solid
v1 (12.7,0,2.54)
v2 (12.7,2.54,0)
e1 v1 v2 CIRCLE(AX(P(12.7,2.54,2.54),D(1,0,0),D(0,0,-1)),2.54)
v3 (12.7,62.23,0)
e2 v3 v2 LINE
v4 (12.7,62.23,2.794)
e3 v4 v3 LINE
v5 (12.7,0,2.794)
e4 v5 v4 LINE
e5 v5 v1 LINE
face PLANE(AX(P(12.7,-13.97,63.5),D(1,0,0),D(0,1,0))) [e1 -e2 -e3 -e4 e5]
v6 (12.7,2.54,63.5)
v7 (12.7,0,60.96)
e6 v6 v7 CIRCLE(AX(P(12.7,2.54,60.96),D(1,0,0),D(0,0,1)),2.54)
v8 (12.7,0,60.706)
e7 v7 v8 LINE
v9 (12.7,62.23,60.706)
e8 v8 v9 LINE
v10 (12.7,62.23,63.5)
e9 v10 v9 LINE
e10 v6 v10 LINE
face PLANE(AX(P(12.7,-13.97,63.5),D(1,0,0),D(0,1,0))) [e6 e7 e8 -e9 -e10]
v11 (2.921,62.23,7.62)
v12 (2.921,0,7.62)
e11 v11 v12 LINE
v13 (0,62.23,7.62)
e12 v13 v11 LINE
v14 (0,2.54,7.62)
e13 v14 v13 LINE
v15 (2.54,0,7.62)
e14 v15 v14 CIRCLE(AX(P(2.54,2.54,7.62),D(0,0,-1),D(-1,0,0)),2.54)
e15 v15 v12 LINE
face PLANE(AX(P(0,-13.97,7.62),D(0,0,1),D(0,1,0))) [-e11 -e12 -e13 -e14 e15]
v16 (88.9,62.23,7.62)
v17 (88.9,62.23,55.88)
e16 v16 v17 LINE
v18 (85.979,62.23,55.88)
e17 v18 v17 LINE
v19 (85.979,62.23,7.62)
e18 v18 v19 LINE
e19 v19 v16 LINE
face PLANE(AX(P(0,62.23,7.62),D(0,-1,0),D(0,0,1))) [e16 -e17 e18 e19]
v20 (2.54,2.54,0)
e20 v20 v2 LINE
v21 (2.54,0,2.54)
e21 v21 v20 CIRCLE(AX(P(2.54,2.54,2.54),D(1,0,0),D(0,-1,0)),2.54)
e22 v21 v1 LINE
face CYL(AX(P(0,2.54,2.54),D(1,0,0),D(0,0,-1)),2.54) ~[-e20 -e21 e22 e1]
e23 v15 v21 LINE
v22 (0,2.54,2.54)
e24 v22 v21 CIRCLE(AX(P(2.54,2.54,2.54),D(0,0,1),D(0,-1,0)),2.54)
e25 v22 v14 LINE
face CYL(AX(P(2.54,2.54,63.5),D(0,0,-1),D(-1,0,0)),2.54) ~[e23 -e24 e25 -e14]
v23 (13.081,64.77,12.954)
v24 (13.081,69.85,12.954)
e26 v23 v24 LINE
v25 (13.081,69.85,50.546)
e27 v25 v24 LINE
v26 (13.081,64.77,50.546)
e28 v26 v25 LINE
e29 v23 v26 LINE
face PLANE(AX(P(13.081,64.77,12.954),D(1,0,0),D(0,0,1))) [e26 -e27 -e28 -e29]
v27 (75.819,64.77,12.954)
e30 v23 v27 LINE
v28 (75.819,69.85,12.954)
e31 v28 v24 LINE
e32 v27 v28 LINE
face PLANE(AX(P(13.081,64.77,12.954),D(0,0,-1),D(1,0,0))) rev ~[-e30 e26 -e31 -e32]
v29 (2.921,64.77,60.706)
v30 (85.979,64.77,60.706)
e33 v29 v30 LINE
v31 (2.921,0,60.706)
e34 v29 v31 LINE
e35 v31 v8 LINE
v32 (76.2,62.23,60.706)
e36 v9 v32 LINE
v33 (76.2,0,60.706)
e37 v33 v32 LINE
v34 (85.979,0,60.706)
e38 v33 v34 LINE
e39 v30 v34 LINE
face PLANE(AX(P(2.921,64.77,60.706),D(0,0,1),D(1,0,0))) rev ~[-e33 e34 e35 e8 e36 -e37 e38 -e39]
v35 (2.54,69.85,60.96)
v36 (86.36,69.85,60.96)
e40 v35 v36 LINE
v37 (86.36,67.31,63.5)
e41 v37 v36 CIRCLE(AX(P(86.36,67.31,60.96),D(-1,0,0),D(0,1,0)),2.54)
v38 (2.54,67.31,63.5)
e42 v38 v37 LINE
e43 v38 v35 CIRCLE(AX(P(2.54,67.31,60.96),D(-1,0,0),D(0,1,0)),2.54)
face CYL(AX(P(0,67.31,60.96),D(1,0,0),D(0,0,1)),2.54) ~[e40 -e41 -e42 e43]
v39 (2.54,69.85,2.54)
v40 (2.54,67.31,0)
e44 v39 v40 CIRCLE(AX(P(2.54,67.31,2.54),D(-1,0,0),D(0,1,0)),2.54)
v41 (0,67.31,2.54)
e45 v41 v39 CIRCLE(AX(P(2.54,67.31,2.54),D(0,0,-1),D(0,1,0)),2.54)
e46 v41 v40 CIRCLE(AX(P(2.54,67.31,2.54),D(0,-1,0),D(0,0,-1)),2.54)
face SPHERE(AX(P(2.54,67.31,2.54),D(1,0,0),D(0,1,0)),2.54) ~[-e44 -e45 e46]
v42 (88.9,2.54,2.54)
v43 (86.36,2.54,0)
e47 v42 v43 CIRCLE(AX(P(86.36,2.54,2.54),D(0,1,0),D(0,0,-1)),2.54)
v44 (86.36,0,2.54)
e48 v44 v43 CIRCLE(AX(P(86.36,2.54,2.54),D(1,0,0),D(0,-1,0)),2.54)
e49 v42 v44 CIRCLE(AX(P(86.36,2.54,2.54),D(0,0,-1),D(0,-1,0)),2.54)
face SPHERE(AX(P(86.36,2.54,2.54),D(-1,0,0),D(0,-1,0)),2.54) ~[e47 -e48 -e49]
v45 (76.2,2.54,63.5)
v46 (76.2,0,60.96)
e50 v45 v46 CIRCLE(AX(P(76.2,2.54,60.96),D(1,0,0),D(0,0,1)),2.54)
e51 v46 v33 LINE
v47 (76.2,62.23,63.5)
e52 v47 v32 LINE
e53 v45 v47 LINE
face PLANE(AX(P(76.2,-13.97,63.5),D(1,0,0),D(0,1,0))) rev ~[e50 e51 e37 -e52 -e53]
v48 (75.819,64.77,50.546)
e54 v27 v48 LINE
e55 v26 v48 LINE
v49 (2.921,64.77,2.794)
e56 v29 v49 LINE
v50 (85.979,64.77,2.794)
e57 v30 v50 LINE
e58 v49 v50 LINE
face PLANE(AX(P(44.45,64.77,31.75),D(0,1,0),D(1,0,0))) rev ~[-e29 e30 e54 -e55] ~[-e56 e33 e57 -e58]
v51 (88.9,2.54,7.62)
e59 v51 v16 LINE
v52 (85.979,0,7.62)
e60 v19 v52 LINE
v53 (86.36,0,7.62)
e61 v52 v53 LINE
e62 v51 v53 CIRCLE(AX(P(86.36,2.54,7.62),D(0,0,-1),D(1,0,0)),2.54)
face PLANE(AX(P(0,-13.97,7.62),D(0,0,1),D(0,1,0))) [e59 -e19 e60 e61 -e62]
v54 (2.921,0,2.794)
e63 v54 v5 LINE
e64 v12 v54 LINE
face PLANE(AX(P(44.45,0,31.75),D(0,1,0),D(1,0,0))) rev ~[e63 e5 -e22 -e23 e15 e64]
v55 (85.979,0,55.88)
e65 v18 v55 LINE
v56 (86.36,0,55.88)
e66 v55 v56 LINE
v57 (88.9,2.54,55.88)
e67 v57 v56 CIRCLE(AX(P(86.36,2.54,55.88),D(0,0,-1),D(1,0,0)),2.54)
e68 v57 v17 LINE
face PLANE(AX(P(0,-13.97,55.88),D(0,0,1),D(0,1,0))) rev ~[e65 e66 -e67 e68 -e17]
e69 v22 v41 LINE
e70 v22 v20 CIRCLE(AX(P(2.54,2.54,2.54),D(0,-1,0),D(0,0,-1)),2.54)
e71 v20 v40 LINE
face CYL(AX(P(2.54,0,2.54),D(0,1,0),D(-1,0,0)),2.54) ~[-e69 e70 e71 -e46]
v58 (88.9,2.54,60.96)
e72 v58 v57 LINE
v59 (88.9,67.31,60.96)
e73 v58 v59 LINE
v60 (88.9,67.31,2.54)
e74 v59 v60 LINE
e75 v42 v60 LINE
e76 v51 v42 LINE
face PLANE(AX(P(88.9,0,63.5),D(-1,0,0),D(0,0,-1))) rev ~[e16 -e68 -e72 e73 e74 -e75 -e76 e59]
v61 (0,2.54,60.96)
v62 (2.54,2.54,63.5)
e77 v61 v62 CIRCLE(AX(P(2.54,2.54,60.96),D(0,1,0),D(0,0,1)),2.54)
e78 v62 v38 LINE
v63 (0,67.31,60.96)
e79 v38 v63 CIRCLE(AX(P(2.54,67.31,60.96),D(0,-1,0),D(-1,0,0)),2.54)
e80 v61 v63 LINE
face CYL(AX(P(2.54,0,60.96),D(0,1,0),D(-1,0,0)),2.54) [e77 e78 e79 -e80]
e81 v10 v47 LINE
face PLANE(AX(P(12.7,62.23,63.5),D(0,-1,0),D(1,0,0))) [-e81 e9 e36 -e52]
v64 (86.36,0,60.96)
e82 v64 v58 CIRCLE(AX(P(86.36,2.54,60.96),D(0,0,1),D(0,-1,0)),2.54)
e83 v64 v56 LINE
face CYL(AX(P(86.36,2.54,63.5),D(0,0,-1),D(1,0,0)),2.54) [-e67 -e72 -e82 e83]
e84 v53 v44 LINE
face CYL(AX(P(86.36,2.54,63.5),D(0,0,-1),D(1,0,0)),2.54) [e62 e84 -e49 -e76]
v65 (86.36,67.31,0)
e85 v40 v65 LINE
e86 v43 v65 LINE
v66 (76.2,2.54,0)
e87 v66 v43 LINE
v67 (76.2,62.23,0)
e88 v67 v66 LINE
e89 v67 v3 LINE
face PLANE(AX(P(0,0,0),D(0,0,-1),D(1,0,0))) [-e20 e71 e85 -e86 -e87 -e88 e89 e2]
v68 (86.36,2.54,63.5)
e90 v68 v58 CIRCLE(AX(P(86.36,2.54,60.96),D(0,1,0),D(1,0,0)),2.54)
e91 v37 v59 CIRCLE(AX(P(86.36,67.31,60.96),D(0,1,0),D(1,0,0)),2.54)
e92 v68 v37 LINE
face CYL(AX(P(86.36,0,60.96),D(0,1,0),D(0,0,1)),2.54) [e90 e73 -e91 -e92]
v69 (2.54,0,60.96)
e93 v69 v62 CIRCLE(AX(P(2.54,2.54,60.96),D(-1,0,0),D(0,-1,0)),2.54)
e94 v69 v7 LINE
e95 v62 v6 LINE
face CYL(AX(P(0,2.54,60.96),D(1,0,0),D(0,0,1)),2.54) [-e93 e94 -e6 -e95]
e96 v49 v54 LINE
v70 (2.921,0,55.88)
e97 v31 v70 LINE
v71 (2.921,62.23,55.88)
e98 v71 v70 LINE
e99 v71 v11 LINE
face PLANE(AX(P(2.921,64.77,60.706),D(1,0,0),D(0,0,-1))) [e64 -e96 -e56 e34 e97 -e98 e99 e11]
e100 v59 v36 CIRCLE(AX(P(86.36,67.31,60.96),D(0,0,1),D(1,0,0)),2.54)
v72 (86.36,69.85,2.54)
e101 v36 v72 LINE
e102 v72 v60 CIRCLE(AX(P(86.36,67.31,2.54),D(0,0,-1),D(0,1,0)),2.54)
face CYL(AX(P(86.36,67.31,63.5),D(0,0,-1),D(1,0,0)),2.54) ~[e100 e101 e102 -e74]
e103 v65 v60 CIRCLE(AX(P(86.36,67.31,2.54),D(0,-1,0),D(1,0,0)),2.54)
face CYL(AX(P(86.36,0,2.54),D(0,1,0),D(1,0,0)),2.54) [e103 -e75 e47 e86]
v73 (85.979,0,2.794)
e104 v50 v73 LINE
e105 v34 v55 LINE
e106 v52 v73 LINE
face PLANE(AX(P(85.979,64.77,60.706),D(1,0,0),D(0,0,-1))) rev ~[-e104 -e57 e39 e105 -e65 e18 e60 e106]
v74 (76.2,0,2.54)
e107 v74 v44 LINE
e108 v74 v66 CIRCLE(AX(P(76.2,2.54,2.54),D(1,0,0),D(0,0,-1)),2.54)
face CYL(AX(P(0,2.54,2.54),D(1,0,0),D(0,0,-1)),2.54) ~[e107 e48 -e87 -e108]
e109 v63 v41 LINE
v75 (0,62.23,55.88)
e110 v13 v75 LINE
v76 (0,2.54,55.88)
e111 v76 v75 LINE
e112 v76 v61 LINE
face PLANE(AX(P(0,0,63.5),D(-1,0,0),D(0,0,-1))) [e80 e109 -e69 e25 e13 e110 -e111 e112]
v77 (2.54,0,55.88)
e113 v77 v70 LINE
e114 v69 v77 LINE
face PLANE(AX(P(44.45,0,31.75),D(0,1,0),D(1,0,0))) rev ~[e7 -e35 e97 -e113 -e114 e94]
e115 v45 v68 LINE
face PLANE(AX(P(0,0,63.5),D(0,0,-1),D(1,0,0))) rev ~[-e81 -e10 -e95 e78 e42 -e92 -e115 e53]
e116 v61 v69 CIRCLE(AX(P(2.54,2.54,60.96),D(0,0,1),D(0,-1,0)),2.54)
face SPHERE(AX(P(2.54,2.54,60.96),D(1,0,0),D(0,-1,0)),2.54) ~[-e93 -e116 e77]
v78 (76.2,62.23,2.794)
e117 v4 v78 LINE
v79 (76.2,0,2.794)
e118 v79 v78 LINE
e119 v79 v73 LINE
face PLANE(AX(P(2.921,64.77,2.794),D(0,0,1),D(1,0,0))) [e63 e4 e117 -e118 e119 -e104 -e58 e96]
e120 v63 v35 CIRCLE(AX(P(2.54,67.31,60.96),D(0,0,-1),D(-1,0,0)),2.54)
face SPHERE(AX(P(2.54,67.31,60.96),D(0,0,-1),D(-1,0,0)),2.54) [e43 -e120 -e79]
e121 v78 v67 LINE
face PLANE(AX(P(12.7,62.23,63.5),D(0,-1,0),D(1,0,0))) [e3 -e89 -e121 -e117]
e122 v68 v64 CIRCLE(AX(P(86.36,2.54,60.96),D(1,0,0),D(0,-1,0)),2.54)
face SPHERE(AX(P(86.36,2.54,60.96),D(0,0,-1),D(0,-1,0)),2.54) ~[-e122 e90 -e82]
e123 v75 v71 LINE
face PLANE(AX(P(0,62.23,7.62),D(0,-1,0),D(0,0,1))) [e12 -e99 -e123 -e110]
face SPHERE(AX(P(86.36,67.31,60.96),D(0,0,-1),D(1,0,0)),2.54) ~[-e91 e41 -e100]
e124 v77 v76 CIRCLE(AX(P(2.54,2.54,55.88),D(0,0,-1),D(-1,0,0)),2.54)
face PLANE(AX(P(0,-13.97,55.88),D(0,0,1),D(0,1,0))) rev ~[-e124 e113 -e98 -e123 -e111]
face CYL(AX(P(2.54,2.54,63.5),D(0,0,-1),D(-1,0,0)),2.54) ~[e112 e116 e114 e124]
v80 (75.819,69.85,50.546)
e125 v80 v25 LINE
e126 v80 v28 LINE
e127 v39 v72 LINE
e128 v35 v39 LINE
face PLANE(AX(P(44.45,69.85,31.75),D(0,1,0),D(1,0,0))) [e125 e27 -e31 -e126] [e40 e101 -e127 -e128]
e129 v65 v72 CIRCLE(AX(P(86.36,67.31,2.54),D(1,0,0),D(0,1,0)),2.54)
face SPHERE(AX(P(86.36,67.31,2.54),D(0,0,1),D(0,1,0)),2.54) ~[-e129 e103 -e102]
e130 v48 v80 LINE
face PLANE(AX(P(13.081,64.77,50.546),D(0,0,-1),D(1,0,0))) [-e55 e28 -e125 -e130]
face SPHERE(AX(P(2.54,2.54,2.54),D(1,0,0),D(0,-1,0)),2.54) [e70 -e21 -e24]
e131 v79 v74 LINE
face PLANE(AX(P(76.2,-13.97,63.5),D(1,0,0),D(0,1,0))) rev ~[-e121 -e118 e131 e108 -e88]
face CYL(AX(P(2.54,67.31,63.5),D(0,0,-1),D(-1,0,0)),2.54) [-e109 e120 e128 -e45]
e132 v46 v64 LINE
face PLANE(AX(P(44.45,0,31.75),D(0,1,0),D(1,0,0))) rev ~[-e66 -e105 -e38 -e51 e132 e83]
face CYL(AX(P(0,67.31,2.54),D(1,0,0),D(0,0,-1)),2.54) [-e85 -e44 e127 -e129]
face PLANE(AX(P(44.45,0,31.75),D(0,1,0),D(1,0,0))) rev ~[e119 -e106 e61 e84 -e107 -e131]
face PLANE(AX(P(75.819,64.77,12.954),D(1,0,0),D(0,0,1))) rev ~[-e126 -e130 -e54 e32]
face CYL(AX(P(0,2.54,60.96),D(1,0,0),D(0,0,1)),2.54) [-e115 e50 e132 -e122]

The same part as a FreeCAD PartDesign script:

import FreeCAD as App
import Part
import Sketcher
Q = App.Units.Quantity


def add_polygon(sketch, points):
    """Adds a closed chain of lines whose ends are joined by coincident constraints."""
    first, n = sketch.GeometryCount, len(points)
    for a, b in zip(points, points[1:] + points[:1]):
        sketch.addGeometry(Part.LineSegment(App.Vector(*a, 0), App.Vector(*b, 0)), False)
    for i in range(n):
        sketch.addConstraint(Sketcher.Constraint("Coincident", first + i, 2, first + (i + 1) % n, 1))

doc = App.newDocument("Part")
params = doc.addObject("Spreadsheet::Sheet", "Params")
for row, (alias, value) in enumerate([
    ("sketch1_width", "3.5 in"),
    ("sketch1_height", "2.5 in"),
    ("pad1_length", "2.75 in"),
    ("fillet_radius", "0.1 in"),
    ("sketch2_width", "3.27 in"),
    ("sketch2_height", "2.28 in"),
    ("sketch3_height", "3 in"),
    ("sketch3_width", "2.5 in"),
    ("sketch4_width", "3 in"),
    ("sketch4_height", "1.9 in"),
    ("sketch5_width", "2.47 in"),
    ("sketch5_height", "1.48 in"),
], start=1):
    params.set(f"A{row}", alias)
    params.set(f"B{row}", "=" + value)
    params.setAlias(f"B{row}", alias)

body = doc.addObject("PartDesign::Body", "Body")

sketch1 = body.newObject("Sketcher::SketchObject", "Sketch")
sketch1.AttachmentSupport = (doc.getObject("XZ_Plane"), [""])
sketch1.MapMode = "FlatFace"
add_polygon(sketch1, [(0, 0), (0, 64), (89, 64), (89, 0)])
sketch1.addConstraint([
    Sketcher.Constraint("Vertical", 0),
    Sketcher.Constraint("Horizontal", 1),
    Sketcher.Constraint("Vertical", 2),
    Sketcher.Constraint("Horizontal", 3),
    Sketcher.Constraint("Coincident", 3, 2, -1, 1),
    Sketcher.Constraint("DistanceX", 1, 1, 1, 2, Q("3.5 in")),
    Sketcher.Constraint("DistanceY", 0, 1, 0, 2, Q("2.5 in")),
])
sketch1.setExpression("Constraints[9]", "Params.sketch1_width")
sketch1.setExpression("Constraints[10]", "Params.sketch1_height")
pad1 = body.newObject("PartDesign::Pad", "Pad")
pad1.Profile = sketch1
pad1.setExpression("Length", "Params.pad1_length")
pad1.Reversed = True
doc.recompute()

fillet = body.newObject("PartDesign::Fillet", "Fillet")
fillet.Base = (pad1, ["Edge1"])
fillet.UseAllEdges = True
fillet.setExpression("Radius", "Params.fillet_radius")

sketch2 = body.newObject("Sketcher::SketchObject", "Sketch001")
sketch2.AttachmentSupport = (doc.getObject("XZ_Plane"), [""])
sketch2.MapMode = "FlatFace"
sketch2.AttachmentOffset = App.Placement(App.Vector(0, 0, -2.55 * 25.4), App.Rotation())
add_polygon(sketch2, [(3, 3), (3, 61), (86, 61), (86, 3)])
sketch2.addConstraint([
    Sketcher.Constraint("Vertical", 0),
    Sketcher.Constraint("Horizontal", 1),
    Sketcher.Constraint("Vertical", 2),
    Sketcher.Constraint("Horizontal", 3),
    Sketcher.Constraint("DistanceX", 1, 1, 1, 2, Q("3.27 in")),
    Sketcher.Constraint("DistanceY", 0, 1, 0, 2, Q("2.28 in")),
    Sketcher.Constraint("DistanceY", -1, 1, 0, 2, Q("2.39 in")),
    Sketcher.Constraint("DistanceX", -1, 1, 0, 2, Q("0.115 in")),
])
sketch2.setExpression("Constraints[8]", "Params.sketch2_width")
sketch2.setExpression("Constraints[9]", "Params.sketch2_height")
pocket1 = body.newObject("PartDesign::Pocket", "Pocket")
pocket1.Profile = sketch2
pocket1.Type = "ThroughAll"
pocket1.Reversed = True

sketch3 = body.newObject("Sketcher::SketchObject", "Sketch002")
sketch3.AttachmentSupport = (doc.getObject("XY_Plane"), [""])
sketch3.MapMode = "FlatFace"
sketch3.AttachmentOffset = App.Placement(App.Vector(0, 0, 2.5 * 25.4), App.Rotation())
add_polygon(sketch3, [(13, 62), (13, -14), (76, -14), (76, 62)])
sketch3.addConstraint([
    Sketcher.Constraint("Vertical", 0),
    Sketcher.Constraint("Horizontal", 1),
    Sketcher.Constraint("Vertical", 2),
    Sketcher.Constraint("Horizontal", 3),
    Sketcher.Constraint("DistanceY", 0, 2, 0, 1, Q("3 in")),
    Sketcher.Constraint("DistanceX", 1, 1, 1, 2, Q("2.5 in")),
    Sketcher.Constraint("DistanceX", -1, 1, 1, 2, Q("3 in")),
    Sketcher.Constraint("DistanceY", 0, 2, -1, 1, Q("0.55 in")),
])
sketch3.setExpression("Constraints[8]", "Params.sketch3_height")
sketch3.setExpression("Constraints[9]", "Params.sketch3_width")
pocket2 = body.newObject("PartDesign::Pocket", "Pocket001")
pocket2.Profile = sketch3
pocket2.Type = "ThroughAll"
pocket2.Midplane = True

sketch4 = body.newObject("Sketcher::SketchObject", "Sketch003")
sketch4.AttachmentSupport = (doc.getObject("YZ_Plane"), [""])
sketch4.MapMode = "FlatFace"
add_polygon(sketch4, [(62, 8), (-14, 8), (-14, 56), (62, 56)])
sketch4.addConstraint([
    Sketcher.Constraint("Horizontal", 0),
    Sketcher.Constraint("Vertical", 1),
    Sketcher.Constraint("Horizontal", 2),
    Sketcher.Constraint("Vertical", 3),
    Sketcher.Constraint("DistanceX", 0, 2, 0, 1, Q("3 in")),
    Sketcher.Constraint("DistanceY", 1, 1, 1, 2, Q("1.9 in")),
    Sketcher.Constraint("DistanceY", -1, 1, 0, 2, Q("0.3 in")),
    Sketcher.Constraint("DistanceX", 0, 2, -1, 1, Q("0.55 in")),
])
sketch4.setExpression("Constraints[8]", "Params.sketch4_width")
sketch4.setExpression("Constraints[9]", "Params.sketch4_height")
pocket3 = body.newObject("PartDesign::Pocket", "Pocket002")
pocket3.Profile = sketch4
pocket3.Type = "ThroughAll"
pocket3.Midplane = True

sketch5 = body.newObject("Sketcher::SketchObject", "Sketch004")
sketch5.AttachmentSupport = (doc.getObject("XZ_Plane"), [""])
sketch5.MapMode = "FlatFace"
sketch5.AttachmentOffset = App.Placement(App.Vector(0, 0, -2.55 * 25.4), App.Rotation())
add_polygon(sketch5, [(13, 51), (13, 13), (76, 13), (76, 51)])
sketch5.addConstraint([
    Sketcher.Constraint("Vertical", 0),
    Sketcher.Constraint("Horizontal", 1),
    Sketcher.Constraint("Vertical", 2),
    Sketcher.Constraint("Horizontal", 3),
    Sketcher.Constraint("DistanceX", 1, 1, 1, 2, Q("2.47 in")),
    Sketcher.Constraint("DistanceY", 0, 2, 0, 1, Q("1.48 in")),
    Sketcher.Constraint("DistanceY", -1, 1, 0, 2, Q("0.51 in")),
    Sketcher.Constraint("DistanceX", -1, 1, 0, 2, Q("0.515 in")),
])
sketch5.setExpression("Constraints[8]", "Params.sketch5_width")
sketch5.setExpression("Constraints[9]", "Params.sketch5_height")
pocket4 = body.newObject("PartDesign::Pocket", "Pocket003")
pocket4.Profile = sketch5
pocket4.Type = "ThroughAll"

doc.recompute()
